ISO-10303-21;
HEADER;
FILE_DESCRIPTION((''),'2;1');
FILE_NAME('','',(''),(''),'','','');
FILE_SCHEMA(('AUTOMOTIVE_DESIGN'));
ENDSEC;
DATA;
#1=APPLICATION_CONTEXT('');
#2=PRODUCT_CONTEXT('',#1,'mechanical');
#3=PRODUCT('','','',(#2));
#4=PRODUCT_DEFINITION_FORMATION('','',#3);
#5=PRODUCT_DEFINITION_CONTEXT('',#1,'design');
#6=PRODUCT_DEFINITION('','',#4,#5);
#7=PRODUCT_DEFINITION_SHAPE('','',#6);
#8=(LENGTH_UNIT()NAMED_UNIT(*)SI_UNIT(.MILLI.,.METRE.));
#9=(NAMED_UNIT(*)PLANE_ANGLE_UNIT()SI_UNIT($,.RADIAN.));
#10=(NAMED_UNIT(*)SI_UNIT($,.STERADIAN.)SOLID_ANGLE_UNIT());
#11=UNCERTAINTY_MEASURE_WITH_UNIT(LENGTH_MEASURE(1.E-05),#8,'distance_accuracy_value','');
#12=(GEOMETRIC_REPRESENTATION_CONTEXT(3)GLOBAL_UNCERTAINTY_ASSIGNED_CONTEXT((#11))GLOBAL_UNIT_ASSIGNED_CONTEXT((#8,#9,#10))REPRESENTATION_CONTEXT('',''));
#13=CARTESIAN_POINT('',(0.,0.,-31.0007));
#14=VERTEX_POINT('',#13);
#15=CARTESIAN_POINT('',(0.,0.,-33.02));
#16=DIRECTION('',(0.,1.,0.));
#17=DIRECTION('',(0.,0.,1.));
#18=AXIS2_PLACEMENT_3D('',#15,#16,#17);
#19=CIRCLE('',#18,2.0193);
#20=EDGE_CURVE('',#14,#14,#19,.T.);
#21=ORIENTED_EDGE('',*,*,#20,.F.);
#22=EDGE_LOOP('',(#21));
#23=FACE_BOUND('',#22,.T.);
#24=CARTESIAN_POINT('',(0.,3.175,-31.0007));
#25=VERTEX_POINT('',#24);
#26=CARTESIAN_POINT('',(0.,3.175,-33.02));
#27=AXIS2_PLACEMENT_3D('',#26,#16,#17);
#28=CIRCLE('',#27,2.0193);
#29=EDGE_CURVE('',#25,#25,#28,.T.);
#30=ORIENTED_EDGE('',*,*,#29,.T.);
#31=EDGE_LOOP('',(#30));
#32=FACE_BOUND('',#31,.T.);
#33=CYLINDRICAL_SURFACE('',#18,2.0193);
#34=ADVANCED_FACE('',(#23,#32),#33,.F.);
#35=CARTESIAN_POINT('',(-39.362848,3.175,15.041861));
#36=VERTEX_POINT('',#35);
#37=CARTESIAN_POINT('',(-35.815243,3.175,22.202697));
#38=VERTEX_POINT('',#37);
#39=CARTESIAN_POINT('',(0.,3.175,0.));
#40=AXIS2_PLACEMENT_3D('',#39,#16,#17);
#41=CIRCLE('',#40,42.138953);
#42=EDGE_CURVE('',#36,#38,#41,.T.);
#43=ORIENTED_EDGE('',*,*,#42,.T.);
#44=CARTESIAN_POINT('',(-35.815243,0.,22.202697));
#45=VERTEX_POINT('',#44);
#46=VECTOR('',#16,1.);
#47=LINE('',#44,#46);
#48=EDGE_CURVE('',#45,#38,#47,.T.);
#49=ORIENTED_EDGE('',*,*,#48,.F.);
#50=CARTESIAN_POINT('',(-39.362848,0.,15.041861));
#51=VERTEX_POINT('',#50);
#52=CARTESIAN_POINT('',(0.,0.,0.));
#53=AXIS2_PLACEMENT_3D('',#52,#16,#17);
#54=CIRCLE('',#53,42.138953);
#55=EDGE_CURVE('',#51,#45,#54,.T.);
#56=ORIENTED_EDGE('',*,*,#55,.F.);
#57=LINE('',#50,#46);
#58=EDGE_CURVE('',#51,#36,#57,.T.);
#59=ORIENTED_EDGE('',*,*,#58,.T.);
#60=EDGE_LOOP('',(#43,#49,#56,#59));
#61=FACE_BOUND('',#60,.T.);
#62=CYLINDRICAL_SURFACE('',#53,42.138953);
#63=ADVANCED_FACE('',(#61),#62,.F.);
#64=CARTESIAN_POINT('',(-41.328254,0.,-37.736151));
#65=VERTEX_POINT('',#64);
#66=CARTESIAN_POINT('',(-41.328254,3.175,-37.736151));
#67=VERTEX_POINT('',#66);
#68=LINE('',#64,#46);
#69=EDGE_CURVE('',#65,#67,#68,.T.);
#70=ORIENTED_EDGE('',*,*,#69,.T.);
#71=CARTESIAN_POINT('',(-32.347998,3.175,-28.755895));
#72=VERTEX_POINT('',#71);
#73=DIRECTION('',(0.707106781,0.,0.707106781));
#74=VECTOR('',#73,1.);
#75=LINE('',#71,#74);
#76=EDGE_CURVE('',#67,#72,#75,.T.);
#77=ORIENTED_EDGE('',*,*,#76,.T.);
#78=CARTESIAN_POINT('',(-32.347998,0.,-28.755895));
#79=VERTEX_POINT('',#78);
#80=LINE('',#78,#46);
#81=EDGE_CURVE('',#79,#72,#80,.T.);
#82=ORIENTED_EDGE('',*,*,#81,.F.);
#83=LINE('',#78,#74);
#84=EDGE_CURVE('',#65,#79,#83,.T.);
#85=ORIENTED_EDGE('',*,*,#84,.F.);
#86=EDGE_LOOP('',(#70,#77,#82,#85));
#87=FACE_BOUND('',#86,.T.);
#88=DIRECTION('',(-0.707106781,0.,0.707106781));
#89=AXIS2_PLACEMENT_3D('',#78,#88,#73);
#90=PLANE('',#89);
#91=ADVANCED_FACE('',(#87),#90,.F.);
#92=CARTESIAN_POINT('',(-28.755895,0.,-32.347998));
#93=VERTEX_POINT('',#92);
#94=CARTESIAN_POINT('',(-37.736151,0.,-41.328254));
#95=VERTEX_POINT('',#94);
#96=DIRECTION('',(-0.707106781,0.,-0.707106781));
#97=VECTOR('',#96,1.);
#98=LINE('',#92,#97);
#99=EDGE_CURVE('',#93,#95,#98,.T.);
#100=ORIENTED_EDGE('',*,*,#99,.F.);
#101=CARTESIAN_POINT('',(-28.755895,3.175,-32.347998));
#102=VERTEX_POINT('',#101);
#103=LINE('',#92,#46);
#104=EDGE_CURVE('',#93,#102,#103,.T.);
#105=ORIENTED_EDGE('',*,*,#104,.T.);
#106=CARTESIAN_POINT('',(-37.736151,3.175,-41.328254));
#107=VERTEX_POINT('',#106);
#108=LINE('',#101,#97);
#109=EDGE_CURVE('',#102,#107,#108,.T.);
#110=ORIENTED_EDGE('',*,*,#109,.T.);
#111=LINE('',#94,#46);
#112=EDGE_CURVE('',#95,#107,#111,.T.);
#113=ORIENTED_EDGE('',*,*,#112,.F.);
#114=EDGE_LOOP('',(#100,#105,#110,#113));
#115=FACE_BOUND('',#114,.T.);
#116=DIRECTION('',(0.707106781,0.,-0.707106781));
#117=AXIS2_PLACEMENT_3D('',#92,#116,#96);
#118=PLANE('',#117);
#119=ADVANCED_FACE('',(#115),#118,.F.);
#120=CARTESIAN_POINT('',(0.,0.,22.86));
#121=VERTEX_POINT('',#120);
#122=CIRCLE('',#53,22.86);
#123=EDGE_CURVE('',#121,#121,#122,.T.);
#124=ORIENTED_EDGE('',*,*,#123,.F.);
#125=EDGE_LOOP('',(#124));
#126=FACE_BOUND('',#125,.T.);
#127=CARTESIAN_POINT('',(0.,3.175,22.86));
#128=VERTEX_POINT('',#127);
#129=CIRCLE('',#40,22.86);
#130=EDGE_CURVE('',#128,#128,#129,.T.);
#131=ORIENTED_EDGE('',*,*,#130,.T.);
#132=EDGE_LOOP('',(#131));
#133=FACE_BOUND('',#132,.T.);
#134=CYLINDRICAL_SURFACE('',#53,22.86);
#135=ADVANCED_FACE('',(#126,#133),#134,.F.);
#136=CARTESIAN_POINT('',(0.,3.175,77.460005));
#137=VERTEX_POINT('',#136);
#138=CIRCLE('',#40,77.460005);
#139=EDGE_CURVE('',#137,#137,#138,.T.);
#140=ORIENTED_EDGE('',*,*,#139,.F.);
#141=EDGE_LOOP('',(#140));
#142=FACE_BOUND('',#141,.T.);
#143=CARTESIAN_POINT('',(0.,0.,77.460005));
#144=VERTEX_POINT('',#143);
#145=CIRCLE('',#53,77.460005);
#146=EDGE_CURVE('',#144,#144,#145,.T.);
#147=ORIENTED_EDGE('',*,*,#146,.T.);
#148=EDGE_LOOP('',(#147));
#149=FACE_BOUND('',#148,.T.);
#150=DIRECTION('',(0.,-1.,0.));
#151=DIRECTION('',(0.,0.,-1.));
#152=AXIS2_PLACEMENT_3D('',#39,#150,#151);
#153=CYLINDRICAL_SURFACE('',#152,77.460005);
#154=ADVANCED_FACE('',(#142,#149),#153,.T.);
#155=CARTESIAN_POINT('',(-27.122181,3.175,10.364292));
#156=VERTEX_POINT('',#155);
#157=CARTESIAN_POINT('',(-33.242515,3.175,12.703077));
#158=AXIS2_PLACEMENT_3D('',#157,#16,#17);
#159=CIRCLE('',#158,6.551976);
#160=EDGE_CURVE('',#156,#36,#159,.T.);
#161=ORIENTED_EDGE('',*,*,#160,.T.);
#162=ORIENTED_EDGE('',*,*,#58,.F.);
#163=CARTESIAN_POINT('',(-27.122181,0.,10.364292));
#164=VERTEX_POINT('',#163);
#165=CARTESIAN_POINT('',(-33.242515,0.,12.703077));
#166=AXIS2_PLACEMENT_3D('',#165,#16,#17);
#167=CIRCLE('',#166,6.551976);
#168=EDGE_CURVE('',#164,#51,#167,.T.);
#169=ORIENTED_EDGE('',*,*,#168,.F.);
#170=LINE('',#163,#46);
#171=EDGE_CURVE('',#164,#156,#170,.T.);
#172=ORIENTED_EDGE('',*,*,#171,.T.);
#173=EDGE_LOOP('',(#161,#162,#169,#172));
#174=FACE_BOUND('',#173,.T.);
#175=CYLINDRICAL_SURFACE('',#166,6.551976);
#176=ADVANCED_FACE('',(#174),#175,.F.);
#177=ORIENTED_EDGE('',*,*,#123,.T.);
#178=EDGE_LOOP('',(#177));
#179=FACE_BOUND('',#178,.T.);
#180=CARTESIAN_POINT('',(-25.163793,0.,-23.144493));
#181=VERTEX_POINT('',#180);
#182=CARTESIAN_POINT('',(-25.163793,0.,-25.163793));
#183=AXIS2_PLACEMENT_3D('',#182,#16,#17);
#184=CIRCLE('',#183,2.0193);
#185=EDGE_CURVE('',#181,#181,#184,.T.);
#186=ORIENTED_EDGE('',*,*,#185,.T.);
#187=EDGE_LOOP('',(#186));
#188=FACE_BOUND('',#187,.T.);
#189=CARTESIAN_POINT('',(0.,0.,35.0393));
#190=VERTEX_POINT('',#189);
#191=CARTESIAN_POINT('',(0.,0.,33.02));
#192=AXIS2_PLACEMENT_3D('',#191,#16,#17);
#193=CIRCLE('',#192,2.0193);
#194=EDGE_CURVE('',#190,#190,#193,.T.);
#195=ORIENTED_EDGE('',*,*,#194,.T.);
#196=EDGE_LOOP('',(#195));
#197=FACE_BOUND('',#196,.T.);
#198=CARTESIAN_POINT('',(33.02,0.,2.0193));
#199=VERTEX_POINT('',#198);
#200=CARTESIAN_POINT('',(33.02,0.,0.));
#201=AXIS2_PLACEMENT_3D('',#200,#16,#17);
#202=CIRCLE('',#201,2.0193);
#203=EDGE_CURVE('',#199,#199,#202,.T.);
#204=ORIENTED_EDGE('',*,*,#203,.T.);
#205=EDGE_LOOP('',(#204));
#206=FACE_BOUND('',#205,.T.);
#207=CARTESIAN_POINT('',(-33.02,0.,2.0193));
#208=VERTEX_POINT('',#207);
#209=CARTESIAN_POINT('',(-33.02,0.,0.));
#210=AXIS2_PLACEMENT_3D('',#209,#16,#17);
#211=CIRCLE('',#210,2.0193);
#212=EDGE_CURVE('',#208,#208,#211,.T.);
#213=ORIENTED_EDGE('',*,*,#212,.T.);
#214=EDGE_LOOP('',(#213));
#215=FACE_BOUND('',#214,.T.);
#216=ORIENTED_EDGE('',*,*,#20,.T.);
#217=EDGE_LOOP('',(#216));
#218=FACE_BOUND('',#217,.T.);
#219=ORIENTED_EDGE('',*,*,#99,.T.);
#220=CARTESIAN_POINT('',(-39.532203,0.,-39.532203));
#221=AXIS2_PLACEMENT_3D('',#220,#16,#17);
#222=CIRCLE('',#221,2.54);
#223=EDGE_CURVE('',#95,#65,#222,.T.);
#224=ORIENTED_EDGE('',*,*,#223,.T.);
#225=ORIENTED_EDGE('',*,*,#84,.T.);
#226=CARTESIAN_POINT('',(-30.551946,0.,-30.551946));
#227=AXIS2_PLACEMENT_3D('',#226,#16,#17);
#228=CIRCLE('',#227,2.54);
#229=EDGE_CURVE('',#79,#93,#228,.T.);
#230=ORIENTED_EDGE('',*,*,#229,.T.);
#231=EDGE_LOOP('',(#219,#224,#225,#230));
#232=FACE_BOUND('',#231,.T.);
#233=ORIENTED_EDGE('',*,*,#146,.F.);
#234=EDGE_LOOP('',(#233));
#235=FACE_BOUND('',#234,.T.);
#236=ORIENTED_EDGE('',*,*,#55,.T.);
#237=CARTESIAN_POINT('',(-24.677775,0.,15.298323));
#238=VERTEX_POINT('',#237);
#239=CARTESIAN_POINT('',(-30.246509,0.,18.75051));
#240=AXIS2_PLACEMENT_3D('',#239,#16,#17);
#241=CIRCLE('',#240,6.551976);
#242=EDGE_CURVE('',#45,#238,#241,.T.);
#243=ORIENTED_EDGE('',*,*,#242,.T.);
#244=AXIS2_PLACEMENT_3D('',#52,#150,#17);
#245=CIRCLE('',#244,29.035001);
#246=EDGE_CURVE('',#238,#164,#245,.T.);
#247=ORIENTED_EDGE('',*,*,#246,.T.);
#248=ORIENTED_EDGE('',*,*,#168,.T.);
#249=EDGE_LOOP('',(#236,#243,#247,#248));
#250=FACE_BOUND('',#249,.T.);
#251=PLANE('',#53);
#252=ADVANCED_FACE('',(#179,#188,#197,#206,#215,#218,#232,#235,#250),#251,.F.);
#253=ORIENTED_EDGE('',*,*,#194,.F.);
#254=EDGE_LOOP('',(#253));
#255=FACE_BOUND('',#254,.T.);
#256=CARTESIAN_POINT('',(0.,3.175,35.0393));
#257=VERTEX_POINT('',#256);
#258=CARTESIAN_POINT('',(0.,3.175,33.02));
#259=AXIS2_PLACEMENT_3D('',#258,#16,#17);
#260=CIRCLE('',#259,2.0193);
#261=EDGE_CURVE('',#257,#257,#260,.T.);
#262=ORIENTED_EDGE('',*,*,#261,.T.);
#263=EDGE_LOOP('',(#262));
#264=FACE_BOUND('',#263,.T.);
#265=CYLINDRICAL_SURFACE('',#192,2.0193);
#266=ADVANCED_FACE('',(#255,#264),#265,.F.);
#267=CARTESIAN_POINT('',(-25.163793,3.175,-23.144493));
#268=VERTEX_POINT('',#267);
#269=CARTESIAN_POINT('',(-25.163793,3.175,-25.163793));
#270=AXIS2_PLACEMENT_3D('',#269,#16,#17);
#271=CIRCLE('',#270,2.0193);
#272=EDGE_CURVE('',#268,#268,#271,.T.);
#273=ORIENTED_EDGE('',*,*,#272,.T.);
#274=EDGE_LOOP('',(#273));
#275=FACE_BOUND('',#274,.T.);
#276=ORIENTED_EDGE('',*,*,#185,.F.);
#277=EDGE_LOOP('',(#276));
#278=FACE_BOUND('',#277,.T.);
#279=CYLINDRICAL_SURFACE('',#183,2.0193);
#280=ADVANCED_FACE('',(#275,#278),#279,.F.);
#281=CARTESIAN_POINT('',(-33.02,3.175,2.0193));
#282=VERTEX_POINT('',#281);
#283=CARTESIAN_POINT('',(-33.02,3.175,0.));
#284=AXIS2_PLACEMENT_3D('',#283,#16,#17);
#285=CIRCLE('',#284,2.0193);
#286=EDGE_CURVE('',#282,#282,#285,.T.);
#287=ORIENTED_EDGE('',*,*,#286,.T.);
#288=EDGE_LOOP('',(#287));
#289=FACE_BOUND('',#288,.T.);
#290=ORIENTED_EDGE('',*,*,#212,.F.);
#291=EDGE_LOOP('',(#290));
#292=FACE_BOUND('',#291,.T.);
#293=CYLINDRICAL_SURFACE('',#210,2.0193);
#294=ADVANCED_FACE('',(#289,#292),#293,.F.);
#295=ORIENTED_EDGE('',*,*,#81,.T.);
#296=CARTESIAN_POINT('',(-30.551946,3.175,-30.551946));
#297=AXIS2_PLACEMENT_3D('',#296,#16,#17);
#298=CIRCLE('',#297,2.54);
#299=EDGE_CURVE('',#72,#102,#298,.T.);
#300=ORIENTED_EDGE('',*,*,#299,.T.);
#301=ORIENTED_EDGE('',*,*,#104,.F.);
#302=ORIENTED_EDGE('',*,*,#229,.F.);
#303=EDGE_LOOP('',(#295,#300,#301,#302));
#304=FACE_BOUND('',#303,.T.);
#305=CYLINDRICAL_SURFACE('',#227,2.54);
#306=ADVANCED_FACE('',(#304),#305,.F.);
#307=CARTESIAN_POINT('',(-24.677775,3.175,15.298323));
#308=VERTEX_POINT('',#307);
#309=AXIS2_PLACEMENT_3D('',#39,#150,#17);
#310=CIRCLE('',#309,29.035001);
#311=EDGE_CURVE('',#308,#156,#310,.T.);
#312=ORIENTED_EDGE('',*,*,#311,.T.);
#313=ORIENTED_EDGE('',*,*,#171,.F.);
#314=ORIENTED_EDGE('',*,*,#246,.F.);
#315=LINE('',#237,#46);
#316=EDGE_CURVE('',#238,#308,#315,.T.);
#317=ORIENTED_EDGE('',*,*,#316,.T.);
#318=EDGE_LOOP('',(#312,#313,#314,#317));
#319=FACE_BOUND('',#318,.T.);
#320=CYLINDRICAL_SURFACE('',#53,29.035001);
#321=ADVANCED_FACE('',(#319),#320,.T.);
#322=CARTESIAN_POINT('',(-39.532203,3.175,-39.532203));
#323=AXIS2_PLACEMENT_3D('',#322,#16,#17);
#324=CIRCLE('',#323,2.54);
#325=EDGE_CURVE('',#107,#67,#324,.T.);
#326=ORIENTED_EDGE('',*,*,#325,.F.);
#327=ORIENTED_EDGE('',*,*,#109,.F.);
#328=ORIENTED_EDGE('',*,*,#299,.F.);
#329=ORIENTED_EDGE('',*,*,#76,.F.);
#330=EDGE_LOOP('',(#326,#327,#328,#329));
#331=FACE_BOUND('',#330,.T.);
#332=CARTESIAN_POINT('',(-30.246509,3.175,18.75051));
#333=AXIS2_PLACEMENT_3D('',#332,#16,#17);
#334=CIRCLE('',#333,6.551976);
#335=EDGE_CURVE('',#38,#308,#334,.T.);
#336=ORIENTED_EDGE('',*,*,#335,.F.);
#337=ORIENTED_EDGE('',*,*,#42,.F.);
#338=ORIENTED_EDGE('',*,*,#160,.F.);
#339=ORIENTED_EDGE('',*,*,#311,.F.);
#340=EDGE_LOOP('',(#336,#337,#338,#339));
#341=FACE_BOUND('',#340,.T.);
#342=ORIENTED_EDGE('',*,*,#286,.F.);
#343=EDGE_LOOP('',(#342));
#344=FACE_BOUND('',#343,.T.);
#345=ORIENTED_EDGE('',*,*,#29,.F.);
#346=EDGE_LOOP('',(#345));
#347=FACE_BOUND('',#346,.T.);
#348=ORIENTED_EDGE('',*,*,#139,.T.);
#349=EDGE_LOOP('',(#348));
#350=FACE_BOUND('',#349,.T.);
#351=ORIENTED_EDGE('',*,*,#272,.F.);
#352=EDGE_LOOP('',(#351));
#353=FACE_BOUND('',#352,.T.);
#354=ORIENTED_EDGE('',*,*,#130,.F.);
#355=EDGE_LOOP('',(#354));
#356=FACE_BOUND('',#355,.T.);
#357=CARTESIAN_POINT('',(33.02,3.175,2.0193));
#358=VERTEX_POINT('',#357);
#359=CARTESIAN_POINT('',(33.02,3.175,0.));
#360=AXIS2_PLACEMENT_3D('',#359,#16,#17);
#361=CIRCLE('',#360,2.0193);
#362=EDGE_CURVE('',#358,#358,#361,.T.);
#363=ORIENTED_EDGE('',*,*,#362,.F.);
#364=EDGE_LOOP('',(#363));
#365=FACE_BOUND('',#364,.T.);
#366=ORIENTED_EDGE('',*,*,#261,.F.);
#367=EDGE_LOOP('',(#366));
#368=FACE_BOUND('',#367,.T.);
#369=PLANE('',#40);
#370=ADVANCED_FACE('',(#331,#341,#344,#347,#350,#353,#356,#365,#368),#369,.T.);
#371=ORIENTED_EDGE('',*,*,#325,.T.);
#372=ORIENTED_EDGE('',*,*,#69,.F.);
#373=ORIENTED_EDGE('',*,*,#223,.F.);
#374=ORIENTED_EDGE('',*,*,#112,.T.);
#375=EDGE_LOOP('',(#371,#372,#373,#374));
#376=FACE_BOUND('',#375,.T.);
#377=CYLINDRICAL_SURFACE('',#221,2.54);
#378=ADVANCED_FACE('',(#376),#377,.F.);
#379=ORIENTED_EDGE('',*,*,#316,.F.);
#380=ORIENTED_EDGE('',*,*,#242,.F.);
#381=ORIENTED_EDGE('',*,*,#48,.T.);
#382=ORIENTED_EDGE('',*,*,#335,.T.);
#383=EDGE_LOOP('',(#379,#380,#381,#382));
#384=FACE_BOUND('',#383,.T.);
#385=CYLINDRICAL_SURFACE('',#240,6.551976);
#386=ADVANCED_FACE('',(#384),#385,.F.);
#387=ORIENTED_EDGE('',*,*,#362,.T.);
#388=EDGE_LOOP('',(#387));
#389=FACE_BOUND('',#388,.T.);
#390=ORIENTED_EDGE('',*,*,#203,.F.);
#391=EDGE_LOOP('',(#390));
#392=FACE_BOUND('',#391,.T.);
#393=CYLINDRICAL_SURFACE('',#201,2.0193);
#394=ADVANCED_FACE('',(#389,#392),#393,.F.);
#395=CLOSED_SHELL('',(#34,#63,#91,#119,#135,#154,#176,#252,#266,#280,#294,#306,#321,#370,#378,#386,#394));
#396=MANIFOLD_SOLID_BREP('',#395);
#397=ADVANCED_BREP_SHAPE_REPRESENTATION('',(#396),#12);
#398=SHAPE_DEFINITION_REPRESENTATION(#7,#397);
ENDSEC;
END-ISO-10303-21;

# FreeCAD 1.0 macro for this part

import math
import FreeCAD as App
import Part
import Sketcher

V = App.Vector
Q = App.Units.Quantity

doc = App.newDocument("Part")
params = doc.addObject("Spreadsheet::Sheet", "Params")
for row, (alias, value) in enumerate([
    ("pad1_length", "0.125 in"),
    ("sketch2_diameter", "1.8 in"),
    ("sketch2_diameter2", "0.159 in"),
    ("sketch3_radius", "0.1 in"),
    ("sketch3_length", "0.5 in"),
    ("pocket2_length", "0.125 in"),
    ("sketch4_diameter", "0.159 in"),
], start=1):
    params.set(f"A{row}", alias)
    params.set(f"B{row}", "=" + value)
    params.setAlias(f"B{row}", alias)

body = doc.addObject("PartDesign::Body", "Body")

# Sketch on XZ plane
sketch1 = doc.addObject("Sketcher::SketchObject", "Sketch")
body.addObject(sketch1)
sketch1.AttachmentSupport = (doc.XZ_Plane, [""])
sketch1.MapMode = "FlatFace"
sketch1.addGeometry(Part.Circle(V(0, 0, 0), V(0, 0, 1), 77), False)
sketch1.addConstraint([
    Sketcher.Constraint("Coincident", 0, 3, -1, 1),
    Sketcher.Constraint("Diameter", 0, Q("154.92001 mm")),
])
pad1 = doc.addObject("PartDesign::Pad", "Pad")
body.addObject(pad1)
pad1.Profile = sketch1
pad1.setExpression("Length", "Params.pad1_length")
pad1.Reversed = True

# Sketch on XZ plane
sketch2 = doc.addObject("Sketcher::SketchObject", "Sketch001")
body.addObject(sketch2)
sketch2.AttachmentSupport = (doc.XZ_Plane, [""])
sketch2.MapMode = "FlatFace"
sketch2.AttachmentOffset = App.Placement(V(0, 0, -0.125 * 25.4), App.Rotation())
sketch2.addGeometry([
    Part.Circle(V(0, 0, 0), V(0, 0, 1), 22.9),  # 0
    Part.Circle(V(0, -33, 0), V(0, 0, 1), 2),  # 1
    Part.Circle(V(33, 0, 0), V(0, 0, 1), 2),  # 2
    Part.Circle(V(0, 33, 0), V(0, 0, 1), 2),  # 3
    Part.Circle(V(-33, 0, 0), V(0, 0, 1), 2),  # 4
], False)
sketch2.addConstraint([
    Sketcher.Constraint("Coincident", 0, 3, -1, 1),
    Sketcher.Constraint("Equal", 1, 2),
    Sketcher.Constraint("Equal", 2, 3),
    Sketcher.Constraint("Equal", 3, 4),
    Sketcher.Constraint("Symmetric", 1, 3, 3, 3, -1, 1),
    Sketcher.Constraint("Symmetric", 2, 3, 4, 3, -1, 1),
    Sketcher.Constraint("PointOnObject", 1, 3, -2),
    Sketcher.Constraint("PointOnObject", 2, 3, -1),
    Sketcher.Constraint("Diameter", 0, Q("1.8 in")),
    Sketcher.Constraint("Diameter", 1, Q("0.159 in")),
    Sketcher.Constraint("DistanceY", 1, 3, -1, 1, Q("1.3 in")),
    Sketcher.Constraint("DistanceX", -1, 1, 2, 3, Q("1.3 in")),
])
sketch2.setExpression("Constraints[8]", "Params.sketch2_diameter")
sketch2.setExpression("Constraints[9]", "Params.sketch2_diameter2")
pocket1 = doc.addObject("PartDesign::Pocket", "Pocket")
body.addObject(pocket1)
pocket1.Profile = sketch2
pocket1.Type = "ThroughAll"
pocket1.Reversed = True

# Sketch on XZ plane
sketch3 = doc.addObject("Sketcher::SketchObject", "Sketch002")
body.addObject(sketch3)
sketch3.AttachmentSupport = (doc.XZ_Plane, [""])
sketch3.MapMode = "FlatFace"
sketch3.AttachmentOffset = App.Placement(V(0, 0, -0.125 * 25.4), App.Rotation())
sketch3.addGeometry([
    Part.LineSegment(V(-41.3, -37.7, 0), V(-32.3, -28.8, 0)),
    Part.ArcOfCircle(Part.Circle(V(-30.6, -30.6, 0), V(0, 0, 1), 2.5), math.radians(-45), math.radians(135)),
    Part.LineSegment(V(-28.8, -32.3, 0), V(-37.7, -41.3, 0)),
    Part.ArcOfCircle(Part.Circle(V(-39.5, -39.5, 0), V(0, 0, 1), 2.5), math.radians(135), math.radians(315)),
], False)
sketch3.addConstraint([
    Sketcher.Constraint("Tangent", 0, 2, 1, 2),
    Sketcher.Constraint("Tangent", 1, 1, 2, 1),
    Sketcher.Constraint("Tangent", 2, 2, 3, 2),
    Sketcher.Constraint("Tangent", 3, 1, 0, 1),
    Sketcher.Constraint("Equal", 1, 3),
    Sketcher.Constraint("Radius", 1, Q("0.1 in")),
    Sketcher.Constraint("Angle", 0, Q("45 deg")),
    Sketcher.Constraint("Distance", 0, Q("0.5 in")),
    Sketcher.Constraint("DistanceX", 2, 2, -1, 1, Q("37.736151 mm")),
    Sketcher.Constraint("DistanceY", 3, 1, -1, 1, Q("37.736151 mm")),
])
sketch3.setExpression("Constraints[5]", "Params.sketch3_radius")
sketch3.setExpression("Constraints[7]", "Params.sketch3_length")
pocket2 = doc.addObject("PartDesign::Pocket", "Pocket001")
body.addObject(pocket2)
pocket2.Profile = sketch3
pocket2.setExpression("Length", "Params.pocket2_length")
pocket2.Reversed = True

# Sketch on XZ plane
sketch4 = doc.addObject("Sketcher::SketchObject", "Sketch003")
body.addObject(sketch4)
sketch4.AttachmentSupport = (doc.XZ_Plane, [""])
sketch4.MapMode = "FlatFace"
sketch4.AttachmentOffset = App.Placement(V(0, 0, -0.125 * 25.4), App.Rotation())
sketch4.addGeometry(Part.Circle(V(-25.2, -25.2, 0), V(0, 0, 1), 2), False)
sketch4.addConstraint([
    Sketcher.Constraint("Diameter", 0, Q("0.159 in")),
    Sketcher.Constraint("DistanceX", 0, 3, -1, 1, Q("25.163793 mm")),
    Sketcher.Constraint("DistanceY", 0, 3, -1, 1, Q("25.163793 mm")),
])
sketch4.setExpression("Constraints[0]", "Params.sketch4_diameter")
pocket3 = doc.addObject("PartDesign::Pocket", "Pocket002")
body.addObject(pocket3)
pocket3.Profile = sketch4
pocket3.Type = "ThroughAll"
pocket3.Reversed = True

# Sketch on XZ plane
sketch5 = doc.addObject("Sketcher::SketchObject", "Sketch004")
body.addObject(sketch5)
sketch5.AttachmentSupport = (doc.XZ_Plane, [""])
sketch5.MapMode = "FlatFace"
sketch5.AttachmentOffset = App.Placement(V(0, 0, -0.125 * 25.4), App.Rotation())
sketch5.addGeometry([
    Part.ArcOfCircle(Part.Circle(V(0, 0, 0), V(0, 0, 1), 42), math.radians(148.2), math.radians(159.09)),
    Part.ArcOfCircle(Part.Circle(V(-30, 19, 0), V(0, 0, 1), 7), math.radians(-32), math.radians(148)),
    Part.ArcOfCircle(Part.Circle(V(0, 0, 0), V(0, 0, 1), 29), math.radians(148.2), math.radians(159.09)),
    Part.ArcOfCircle(Part.Circle(V(-33, 13, 0), V(0, 0, 1), 7), math.radians(159), math.radians(339)),
], False)
sketch5.addConstraint([
    Sketcher.Constraint("Tangent", 0, 1, 1, 2),
    Sketcher.Constraint("Tangent", 1, 1, 2, 1),
    Sketcher.Constraint("Tangent", 2, 2, 3, 2),
    Sketcher.Constraint("Tangent", 3, 1, 0, 2),
    Sketcher.Constraint("Coincident", 0, 3, -1, 1),
    Sketcher.Constraint("Coincident", 2, 3, -1, 1),
    Sketcher.Constraint("Radius", 2, Q("29.035001 mm")),
    Sketcher.Constraint("Radius", 0, Q("42.138953 mm")),
    Sketcher.Constraint("DistanceX", 1, 3, -1, 1, Q("30.246509 mm")),
    Sketcher.Constraint("DistanceX", 2, 2, -1, 1, Q("27.122181 mm")),
])
pocket4 = doc.addObject("PartDesign::Pocket", "Pocket003")
body.addObject(pocket4)
pocket4.Profile = sketch5
pocket4.Type = "ThroughAll"
pocket4.Reversed = True

doc.recompute()
